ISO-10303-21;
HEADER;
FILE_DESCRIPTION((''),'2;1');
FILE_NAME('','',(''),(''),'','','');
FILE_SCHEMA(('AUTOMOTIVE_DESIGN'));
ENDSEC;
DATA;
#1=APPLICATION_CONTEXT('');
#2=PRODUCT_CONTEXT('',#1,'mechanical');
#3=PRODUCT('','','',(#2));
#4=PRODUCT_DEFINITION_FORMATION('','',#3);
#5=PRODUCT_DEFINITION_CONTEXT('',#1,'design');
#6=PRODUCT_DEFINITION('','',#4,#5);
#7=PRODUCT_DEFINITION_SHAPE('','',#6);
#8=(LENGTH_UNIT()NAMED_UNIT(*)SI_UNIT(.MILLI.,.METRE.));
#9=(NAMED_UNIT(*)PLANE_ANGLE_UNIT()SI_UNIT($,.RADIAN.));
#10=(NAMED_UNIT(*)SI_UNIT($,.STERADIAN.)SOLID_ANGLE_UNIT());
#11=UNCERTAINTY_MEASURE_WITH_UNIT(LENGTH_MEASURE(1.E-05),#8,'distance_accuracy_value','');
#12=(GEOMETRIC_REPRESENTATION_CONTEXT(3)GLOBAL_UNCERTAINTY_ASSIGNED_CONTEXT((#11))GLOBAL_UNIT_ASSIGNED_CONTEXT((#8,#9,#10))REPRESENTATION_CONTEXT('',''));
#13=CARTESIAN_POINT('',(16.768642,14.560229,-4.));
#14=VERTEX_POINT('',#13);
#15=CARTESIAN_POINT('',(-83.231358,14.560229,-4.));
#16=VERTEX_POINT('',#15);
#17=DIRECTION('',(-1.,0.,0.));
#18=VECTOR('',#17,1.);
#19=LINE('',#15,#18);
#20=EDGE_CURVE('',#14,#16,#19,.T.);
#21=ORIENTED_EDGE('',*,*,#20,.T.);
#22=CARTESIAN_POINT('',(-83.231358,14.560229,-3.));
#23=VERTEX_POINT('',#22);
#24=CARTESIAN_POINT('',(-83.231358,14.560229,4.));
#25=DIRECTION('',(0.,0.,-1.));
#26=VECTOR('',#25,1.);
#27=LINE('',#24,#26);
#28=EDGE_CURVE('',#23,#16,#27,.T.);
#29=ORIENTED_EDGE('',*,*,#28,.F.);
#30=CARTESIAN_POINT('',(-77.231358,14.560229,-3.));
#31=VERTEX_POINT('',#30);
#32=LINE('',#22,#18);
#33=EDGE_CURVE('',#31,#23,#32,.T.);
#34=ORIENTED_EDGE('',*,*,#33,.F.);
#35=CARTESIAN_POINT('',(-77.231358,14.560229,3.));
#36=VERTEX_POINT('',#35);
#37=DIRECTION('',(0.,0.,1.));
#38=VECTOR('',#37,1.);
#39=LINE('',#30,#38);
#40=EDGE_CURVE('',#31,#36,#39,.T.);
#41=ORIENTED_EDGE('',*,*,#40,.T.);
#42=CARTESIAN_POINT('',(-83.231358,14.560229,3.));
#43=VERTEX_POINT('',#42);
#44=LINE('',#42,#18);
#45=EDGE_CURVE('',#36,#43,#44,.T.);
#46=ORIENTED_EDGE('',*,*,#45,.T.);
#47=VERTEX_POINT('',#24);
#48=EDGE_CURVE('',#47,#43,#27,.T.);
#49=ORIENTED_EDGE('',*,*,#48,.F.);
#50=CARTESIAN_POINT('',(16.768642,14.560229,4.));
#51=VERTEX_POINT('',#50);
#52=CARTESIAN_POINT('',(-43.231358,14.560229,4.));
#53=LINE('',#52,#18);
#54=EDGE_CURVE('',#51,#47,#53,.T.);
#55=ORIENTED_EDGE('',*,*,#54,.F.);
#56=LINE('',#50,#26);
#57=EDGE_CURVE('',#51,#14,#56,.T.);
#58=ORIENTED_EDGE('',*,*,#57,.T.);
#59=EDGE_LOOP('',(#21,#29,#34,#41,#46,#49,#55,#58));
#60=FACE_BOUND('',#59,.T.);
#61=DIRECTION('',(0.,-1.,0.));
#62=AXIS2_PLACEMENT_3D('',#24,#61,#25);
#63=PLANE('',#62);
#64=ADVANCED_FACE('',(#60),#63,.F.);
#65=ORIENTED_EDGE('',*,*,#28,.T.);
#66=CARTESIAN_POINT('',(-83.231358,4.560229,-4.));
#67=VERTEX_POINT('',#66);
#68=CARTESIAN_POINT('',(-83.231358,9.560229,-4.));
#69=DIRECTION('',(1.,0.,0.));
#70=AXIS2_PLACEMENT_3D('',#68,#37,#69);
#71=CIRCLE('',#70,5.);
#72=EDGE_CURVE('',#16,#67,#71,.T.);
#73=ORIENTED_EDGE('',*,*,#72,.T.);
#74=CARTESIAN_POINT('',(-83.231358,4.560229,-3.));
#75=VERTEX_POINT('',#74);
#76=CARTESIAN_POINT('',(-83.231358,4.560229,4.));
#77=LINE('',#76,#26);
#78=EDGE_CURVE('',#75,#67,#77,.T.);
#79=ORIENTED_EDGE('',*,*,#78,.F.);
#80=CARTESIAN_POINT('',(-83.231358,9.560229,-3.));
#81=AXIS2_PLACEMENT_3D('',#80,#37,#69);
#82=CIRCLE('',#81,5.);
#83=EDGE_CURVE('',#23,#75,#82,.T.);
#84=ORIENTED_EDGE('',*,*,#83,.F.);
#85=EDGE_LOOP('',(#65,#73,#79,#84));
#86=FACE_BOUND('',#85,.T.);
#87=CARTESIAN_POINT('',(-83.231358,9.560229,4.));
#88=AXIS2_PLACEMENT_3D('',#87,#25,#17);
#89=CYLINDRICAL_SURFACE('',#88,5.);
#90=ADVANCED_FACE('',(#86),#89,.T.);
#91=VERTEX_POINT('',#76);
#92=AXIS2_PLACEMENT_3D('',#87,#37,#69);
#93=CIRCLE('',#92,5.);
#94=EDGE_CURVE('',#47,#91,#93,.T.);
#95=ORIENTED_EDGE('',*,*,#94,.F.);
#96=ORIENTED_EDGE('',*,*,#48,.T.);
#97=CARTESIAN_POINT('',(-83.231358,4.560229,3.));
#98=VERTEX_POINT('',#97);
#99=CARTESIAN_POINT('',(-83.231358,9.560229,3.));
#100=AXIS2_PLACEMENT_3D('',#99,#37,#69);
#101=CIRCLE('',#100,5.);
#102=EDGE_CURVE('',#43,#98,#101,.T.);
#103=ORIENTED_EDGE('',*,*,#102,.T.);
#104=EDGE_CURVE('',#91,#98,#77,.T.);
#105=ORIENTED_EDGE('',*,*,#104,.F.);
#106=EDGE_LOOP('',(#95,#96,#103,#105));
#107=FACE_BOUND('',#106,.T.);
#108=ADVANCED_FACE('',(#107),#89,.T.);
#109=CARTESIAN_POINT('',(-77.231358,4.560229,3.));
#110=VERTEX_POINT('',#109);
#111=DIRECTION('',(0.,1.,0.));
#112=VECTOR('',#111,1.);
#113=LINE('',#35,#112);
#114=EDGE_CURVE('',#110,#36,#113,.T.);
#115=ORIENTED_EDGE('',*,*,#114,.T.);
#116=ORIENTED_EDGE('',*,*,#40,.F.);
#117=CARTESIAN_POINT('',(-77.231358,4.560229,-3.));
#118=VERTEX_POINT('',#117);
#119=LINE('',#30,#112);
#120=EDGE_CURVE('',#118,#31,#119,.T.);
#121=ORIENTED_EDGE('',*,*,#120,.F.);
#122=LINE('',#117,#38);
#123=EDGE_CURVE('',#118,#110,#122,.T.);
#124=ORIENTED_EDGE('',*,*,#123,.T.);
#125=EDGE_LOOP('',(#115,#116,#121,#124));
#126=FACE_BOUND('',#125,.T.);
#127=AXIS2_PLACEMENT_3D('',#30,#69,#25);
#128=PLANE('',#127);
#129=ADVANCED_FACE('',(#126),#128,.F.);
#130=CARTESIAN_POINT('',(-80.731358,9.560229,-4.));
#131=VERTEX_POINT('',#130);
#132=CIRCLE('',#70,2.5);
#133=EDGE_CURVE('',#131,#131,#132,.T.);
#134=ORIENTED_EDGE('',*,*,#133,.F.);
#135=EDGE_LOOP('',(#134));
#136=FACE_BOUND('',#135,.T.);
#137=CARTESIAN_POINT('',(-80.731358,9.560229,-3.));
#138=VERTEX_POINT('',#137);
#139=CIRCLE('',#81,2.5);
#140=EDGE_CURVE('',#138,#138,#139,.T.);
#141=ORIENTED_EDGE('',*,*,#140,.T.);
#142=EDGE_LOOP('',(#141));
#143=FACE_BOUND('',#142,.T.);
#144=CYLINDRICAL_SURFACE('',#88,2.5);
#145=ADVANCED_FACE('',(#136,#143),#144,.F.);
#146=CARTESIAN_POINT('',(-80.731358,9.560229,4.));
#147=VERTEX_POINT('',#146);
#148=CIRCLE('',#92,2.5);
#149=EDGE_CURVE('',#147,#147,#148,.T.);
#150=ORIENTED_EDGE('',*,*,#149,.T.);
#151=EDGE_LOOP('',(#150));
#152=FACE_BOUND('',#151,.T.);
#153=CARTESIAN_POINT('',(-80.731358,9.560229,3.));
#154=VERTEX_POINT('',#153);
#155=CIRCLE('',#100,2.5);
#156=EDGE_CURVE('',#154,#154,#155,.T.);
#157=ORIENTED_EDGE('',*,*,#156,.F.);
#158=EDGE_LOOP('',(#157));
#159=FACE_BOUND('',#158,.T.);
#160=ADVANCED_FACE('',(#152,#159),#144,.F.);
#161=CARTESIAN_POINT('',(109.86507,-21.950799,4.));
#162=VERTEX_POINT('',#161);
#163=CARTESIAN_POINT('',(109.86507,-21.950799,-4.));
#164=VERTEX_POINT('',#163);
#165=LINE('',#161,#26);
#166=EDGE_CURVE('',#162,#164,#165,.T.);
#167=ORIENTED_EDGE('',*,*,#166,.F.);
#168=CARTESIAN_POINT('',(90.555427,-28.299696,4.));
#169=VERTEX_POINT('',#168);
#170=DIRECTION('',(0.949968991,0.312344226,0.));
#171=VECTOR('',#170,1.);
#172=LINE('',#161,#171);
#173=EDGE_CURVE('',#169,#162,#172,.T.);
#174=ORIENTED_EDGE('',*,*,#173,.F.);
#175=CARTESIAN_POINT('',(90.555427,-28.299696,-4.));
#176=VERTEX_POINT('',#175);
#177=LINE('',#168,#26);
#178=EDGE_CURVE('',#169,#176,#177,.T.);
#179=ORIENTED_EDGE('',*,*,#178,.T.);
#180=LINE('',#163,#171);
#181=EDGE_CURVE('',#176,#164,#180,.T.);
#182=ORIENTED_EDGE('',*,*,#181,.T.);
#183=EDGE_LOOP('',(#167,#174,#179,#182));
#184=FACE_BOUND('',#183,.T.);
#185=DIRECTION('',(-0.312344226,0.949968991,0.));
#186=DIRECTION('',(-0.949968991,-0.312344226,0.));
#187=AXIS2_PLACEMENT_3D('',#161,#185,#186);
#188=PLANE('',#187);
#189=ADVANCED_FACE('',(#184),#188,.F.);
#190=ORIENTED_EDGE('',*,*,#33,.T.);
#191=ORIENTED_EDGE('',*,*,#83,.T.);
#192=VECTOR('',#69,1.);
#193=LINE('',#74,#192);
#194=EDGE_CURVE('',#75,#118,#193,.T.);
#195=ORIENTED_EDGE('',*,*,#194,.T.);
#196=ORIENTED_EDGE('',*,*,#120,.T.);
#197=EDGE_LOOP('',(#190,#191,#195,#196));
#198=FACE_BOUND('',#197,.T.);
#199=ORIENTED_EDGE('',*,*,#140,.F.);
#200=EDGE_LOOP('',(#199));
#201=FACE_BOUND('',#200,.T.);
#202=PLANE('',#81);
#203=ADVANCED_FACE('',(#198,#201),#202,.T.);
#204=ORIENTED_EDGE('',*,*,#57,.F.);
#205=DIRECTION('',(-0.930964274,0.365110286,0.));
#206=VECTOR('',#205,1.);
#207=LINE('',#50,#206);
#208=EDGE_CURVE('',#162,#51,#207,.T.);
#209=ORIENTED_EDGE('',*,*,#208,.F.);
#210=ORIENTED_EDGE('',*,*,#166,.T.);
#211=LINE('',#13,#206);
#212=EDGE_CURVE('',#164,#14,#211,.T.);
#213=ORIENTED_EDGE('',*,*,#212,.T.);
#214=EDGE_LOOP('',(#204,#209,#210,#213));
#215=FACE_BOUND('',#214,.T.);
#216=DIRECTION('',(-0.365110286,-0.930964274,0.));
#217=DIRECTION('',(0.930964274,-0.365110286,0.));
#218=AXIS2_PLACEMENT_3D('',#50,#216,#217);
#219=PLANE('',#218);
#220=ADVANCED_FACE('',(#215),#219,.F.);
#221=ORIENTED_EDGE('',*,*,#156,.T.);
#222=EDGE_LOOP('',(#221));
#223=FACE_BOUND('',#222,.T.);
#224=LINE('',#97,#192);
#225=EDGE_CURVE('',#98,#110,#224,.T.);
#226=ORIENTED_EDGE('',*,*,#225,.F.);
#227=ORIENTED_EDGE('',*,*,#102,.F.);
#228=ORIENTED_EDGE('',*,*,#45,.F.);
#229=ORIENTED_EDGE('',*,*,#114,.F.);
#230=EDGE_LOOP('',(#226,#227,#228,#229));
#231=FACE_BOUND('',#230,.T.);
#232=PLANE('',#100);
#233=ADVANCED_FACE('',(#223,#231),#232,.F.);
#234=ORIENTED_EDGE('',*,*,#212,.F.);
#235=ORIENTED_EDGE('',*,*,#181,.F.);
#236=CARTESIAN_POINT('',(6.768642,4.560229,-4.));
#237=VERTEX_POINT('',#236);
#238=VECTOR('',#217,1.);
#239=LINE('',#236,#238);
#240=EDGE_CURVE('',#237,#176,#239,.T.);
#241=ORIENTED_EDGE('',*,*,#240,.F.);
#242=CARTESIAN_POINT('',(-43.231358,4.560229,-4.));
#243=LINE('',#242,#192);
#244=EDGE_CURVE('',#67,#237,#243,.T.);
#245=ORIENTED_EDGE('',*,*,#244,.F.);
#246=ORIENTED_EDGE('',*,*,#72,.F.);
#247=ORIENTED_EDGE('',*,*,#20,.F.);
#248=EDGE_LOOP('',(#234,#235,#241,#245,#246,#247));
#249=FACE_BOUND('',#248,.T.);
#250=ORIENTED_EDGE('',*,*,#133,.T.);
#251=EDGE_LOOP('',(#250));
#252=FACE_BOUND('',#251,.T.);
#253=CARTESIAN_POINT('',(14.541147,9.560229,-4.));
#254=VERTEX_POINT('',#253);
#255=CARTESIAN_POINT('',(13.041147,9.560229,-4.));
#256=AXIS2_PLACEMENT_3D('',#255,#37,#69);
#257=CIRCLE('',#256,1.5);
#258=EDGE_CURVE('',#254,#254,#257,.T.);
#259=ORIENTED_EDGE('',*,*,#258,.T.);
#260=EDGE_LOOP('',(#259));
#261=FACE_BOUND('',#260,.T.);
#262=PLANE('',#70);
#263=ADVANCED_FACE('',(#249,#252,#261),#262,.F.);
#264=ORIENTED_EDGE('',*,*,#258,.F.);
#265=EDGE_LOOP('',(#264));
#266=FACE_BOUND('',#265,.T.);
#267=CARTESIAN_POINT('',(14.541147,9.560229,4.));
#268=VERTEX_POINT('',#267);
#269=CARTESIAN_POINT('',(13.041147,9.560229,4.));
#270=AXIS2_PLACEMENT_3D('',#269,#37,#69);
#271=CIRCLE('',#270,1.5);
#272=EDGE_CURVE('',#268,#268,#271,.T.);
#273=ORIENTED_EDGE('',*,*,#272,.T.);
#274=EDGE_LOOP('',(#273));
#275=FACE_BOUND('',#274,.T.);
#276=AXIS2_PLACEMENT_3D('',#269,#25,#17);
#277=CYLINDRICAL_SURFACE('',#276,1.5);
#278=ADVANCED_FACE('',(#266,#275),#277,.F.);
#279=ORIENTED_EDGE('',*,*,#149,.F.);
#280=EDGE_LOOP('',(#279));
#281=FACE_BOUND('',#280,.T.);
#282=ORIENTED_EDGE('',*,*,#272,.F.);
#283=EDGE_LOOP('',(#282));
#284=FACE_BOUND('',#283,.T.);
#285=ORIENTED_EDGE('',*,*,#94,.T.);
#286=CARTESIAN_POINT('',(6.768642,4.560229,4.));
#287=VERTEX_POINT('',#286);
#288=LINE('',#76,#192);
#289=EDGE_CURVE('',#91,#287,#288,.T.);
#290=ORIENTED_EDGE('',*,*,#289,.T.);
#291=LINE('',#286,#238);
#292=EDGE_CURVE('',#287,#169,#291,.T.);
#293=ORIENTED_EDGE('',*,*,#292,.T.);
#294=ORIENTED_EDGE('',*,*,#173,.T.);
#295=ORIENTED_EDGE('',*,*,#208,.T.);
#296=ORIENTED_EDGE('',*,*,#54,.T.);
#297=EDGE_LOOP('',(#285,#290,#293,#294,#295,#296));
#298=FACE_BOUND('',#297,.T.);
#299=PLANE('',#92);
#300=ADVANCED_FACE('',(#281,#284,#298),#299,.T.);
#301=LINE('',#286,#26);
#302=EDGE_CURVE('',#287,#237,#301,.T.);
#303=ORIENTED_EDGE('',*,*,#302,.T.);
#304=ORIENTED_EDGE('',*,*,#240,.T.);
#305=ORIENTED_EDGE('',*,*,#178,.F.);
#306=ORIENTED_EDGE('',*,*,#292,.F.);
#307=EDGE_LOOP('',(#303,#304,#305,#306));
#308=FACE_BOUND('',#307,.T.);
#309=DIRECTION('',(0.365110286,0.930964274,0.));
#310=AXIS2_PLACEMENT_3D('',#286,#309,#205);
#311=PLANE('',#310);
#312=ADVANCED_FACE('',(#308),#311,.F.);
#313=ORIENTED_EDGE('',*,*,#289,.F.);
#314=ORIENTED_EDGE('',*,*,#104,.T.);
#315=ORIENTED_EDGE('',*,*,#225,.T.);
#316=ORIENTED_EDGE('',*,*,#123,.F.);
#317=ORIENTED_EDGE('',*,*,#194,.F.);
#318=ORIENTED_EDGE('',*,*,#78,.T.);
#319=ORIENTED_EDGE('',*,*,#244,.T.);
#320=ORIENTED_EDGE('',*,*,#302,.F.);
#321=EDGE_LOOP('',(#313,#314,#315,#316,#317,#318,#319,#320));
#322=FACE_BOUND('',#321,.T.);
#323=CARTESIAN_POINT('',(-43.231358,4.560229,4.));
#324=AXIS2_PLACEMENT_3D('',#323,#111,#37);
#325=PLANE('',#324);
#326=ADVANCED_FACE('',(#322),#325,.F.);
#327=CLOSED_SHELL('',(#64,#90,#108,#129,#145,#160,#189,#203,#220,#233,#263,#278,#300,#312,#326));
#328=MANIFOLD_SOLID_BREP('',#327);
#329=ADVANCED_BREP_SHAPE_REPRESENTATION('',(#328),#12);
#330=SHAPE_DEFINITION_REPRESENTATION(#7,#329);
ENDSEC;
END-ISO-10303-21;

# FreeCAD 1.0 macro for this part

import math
import FreeCAD as App
import Part
import Sketcher

V = App.Vector

doc = App.newDocument("Part")
body = doc.addObject("PartDesign::Body", "Body")

# Sketch on XY plane
sketch1 = body.newObject("Sketcher::SketchObject", "Sketch")
sketch1.AttachmentSupport = (doc.getObject("XY_Plane"), [""])
sketch1.MapMode = "FlatFace"
sketch1.addGeometry(Part.LineSegment(V(16.8, 14.6, 0), V(-83.2, 14.6, 0)), False)
sketch1.addGeometry(Part.ArcOfCircle(Part.Circle(V(-83.2, 9.6, 0), V(0, 0, 1), 5), math.radians(90), math.radians(270)), False)
sketch1.addGeometry(Part.LineSegment(V(-83.2, 4.6, 0), V(6.8, 4.6, 0)), False)
sketch1.addGeometry(Part.LineSegment(V(6.8, 4.6, 0), V(90.6, -28.3, 0)), False)
sketch1.addGeometry(Part.LineSegment(V(90.6, -28.3, 0), V(109.9, -22, 0)), False)
sketch1.addGeometry(Part.LineSegment(V(109.9, -22, 0), V(16.8, 14.6, 0)), False)
sketch1.addGeometry(Part.Circle(V(13, 9.6, 0), V(0, 0, 1), 1.5), False)
sketch1.addGeometry(Part.Circle(V(-83.2, 9.6, 0), V(0, 0, 1), 2.5), False)
sketch1.addConstraint(Sketcher.Constraint("Tangent", 0, 2, 1, 1))
sketch1.addConstraint(Sketcher.Constraint("Tangent", 1, 2, 2, 1))
sketch1.addConstraint(Sketcher.Constraint("Coincident", 2, 2, 3, 1))
sketch1.addConstraint(Sketcher.Constraint("Coincident", 3, 2, 4, 1))
sketch1.addConstraint(Sketcher.Constraint("Coincident", 4, 2, 5, 1))
sketch1.addConstraint(Sketcher.Constraint("Coincident", 5, 2, 0, 1))
sketch1.addConstraint(Sketcher.Constraint("Horizontal", 0))
sketch1.addConstraint(Sketcher.Constraint("Horizontal", 2))
sketch1.addConstraint(Sketcher.Constraint("Coincident", 7, 3, 1, 3))
sketch1.addConstraint(Sketcher.Constraint("Parallel", 3, 5))
sketch1.addConstraint(Sketcher.Constraint("Horizontal", 1, 3, 6, 3))
sketch1.addConstraint(Sketcher.Constraint("Diameter", 6, 3.0))
sketch1.addConstraint(Sketcher.Constraint("Diameter", 7, 5.0))
sketch1.addConstraint(Sketcher.Constraint("Radius", 1, 5.0))
sketch1.addConstraint(Sketcher.Constraint("DistanceX", 0, 2, 0, 1, 100.0))
sketch1.addConstraint(Sketcher.Constraint("DistanceX", 2, 1, 2, 2, 90.0))
sketch1.addConstraint(Sketcher.Constraint("Distance", 3, 90.0))
sketch1.addConstraint(Sketcher.Constraint("Distance", 5, 100.0))
sketch1.addConstraint(Sketcher.Constraint("DistanceY", 4, 2, -1, 1, 21.950799))
sketch1.addConstraint(Sketcher.Constraint("DistanceY", -1, 1, 1, 3, 9.560229))
sketch1.addConstraint(Sketcher.Constraint("DistanceX", -1, 1, 4, 2, 109.86507))
sketch1.addConstraint(Sketcher.Constraint("DistanceX", 6, 3, 3, 2, 77.51428))
pad1 = body.newObject("PartDesign::Pad", "Pad")
pad1.Profile = sketch1
pad1.Length = 8
pad1.Midplane = True

# Sketch on XY plane
sketch2 = body.newObject("Sketcher::SketchObject", "Sketch001")
sketch2.AttachmentSupport = (doc.getObject("XY_Plane"), [""])
sketch2.MapMode = "FlatFace"
sketch2.addGeometry(Part.LineSegment(V(-83, 5, 0), V(-77, 5, 0)), False)
sketch2.addGeometry(Part.LineSegment(V(-77, 5, 0), V(-77, 15, 0)), False)
sketch2.addGeometry(Part.LineSegment(V(-77, 15, 0), V(-83, 15, 0)), False)
sketch2.addGeometry(Part.ArcOfCircle(Part.Circle(V(-83, 10, 0), V(0, 0, 1), 5), math.radians(90), math.radians(270)), False)
sketch2.addConstraint(Sketcher.Constraint("Coincident", 0, 2, 1, 1))
sketch2.addConstraint(Sketcher.Constraint("Coincident", 1, 2, 2, 1))
sketch2.addConstraint(Sketcher.Constraint("Tangent", 2, 2, 3, 1))
sketch2.addConstraint(Sketcher.Constraint("Tangent", 3, 2, 0, 1))
sketch2.addConstraint(Sketcher.Constraint("Horizontal", 0))
sketch2.addConstraint(Sketcher.Constraint("Vertical", 1))
sketch2.addConstraint(Sketcher.Constraint("Horizontal", 2))
sketch2.addConstraint(Sketcher.Constraint("Radius", 3, 5.0))
sketch2.addConstraint(Sketcher.Constraint("DistanceX", 0, 1, 0, 2, 6.0))
sketch2.addConstraint(Sketcher.Constraint("DistanceY", -1, 1, 3, 3, 9.560229))
sketch2.addConstraint(Sketcher.Constraint("DistanceX", 3, 3, -1, 1, 83.231358))
pocket1 = body.newObject("PartDesign::Pocket", "Pocket")
pocket1.Profile = sketch2
pocket1.Length = 6
pocket1.Midplane = True

doc.recompute()
